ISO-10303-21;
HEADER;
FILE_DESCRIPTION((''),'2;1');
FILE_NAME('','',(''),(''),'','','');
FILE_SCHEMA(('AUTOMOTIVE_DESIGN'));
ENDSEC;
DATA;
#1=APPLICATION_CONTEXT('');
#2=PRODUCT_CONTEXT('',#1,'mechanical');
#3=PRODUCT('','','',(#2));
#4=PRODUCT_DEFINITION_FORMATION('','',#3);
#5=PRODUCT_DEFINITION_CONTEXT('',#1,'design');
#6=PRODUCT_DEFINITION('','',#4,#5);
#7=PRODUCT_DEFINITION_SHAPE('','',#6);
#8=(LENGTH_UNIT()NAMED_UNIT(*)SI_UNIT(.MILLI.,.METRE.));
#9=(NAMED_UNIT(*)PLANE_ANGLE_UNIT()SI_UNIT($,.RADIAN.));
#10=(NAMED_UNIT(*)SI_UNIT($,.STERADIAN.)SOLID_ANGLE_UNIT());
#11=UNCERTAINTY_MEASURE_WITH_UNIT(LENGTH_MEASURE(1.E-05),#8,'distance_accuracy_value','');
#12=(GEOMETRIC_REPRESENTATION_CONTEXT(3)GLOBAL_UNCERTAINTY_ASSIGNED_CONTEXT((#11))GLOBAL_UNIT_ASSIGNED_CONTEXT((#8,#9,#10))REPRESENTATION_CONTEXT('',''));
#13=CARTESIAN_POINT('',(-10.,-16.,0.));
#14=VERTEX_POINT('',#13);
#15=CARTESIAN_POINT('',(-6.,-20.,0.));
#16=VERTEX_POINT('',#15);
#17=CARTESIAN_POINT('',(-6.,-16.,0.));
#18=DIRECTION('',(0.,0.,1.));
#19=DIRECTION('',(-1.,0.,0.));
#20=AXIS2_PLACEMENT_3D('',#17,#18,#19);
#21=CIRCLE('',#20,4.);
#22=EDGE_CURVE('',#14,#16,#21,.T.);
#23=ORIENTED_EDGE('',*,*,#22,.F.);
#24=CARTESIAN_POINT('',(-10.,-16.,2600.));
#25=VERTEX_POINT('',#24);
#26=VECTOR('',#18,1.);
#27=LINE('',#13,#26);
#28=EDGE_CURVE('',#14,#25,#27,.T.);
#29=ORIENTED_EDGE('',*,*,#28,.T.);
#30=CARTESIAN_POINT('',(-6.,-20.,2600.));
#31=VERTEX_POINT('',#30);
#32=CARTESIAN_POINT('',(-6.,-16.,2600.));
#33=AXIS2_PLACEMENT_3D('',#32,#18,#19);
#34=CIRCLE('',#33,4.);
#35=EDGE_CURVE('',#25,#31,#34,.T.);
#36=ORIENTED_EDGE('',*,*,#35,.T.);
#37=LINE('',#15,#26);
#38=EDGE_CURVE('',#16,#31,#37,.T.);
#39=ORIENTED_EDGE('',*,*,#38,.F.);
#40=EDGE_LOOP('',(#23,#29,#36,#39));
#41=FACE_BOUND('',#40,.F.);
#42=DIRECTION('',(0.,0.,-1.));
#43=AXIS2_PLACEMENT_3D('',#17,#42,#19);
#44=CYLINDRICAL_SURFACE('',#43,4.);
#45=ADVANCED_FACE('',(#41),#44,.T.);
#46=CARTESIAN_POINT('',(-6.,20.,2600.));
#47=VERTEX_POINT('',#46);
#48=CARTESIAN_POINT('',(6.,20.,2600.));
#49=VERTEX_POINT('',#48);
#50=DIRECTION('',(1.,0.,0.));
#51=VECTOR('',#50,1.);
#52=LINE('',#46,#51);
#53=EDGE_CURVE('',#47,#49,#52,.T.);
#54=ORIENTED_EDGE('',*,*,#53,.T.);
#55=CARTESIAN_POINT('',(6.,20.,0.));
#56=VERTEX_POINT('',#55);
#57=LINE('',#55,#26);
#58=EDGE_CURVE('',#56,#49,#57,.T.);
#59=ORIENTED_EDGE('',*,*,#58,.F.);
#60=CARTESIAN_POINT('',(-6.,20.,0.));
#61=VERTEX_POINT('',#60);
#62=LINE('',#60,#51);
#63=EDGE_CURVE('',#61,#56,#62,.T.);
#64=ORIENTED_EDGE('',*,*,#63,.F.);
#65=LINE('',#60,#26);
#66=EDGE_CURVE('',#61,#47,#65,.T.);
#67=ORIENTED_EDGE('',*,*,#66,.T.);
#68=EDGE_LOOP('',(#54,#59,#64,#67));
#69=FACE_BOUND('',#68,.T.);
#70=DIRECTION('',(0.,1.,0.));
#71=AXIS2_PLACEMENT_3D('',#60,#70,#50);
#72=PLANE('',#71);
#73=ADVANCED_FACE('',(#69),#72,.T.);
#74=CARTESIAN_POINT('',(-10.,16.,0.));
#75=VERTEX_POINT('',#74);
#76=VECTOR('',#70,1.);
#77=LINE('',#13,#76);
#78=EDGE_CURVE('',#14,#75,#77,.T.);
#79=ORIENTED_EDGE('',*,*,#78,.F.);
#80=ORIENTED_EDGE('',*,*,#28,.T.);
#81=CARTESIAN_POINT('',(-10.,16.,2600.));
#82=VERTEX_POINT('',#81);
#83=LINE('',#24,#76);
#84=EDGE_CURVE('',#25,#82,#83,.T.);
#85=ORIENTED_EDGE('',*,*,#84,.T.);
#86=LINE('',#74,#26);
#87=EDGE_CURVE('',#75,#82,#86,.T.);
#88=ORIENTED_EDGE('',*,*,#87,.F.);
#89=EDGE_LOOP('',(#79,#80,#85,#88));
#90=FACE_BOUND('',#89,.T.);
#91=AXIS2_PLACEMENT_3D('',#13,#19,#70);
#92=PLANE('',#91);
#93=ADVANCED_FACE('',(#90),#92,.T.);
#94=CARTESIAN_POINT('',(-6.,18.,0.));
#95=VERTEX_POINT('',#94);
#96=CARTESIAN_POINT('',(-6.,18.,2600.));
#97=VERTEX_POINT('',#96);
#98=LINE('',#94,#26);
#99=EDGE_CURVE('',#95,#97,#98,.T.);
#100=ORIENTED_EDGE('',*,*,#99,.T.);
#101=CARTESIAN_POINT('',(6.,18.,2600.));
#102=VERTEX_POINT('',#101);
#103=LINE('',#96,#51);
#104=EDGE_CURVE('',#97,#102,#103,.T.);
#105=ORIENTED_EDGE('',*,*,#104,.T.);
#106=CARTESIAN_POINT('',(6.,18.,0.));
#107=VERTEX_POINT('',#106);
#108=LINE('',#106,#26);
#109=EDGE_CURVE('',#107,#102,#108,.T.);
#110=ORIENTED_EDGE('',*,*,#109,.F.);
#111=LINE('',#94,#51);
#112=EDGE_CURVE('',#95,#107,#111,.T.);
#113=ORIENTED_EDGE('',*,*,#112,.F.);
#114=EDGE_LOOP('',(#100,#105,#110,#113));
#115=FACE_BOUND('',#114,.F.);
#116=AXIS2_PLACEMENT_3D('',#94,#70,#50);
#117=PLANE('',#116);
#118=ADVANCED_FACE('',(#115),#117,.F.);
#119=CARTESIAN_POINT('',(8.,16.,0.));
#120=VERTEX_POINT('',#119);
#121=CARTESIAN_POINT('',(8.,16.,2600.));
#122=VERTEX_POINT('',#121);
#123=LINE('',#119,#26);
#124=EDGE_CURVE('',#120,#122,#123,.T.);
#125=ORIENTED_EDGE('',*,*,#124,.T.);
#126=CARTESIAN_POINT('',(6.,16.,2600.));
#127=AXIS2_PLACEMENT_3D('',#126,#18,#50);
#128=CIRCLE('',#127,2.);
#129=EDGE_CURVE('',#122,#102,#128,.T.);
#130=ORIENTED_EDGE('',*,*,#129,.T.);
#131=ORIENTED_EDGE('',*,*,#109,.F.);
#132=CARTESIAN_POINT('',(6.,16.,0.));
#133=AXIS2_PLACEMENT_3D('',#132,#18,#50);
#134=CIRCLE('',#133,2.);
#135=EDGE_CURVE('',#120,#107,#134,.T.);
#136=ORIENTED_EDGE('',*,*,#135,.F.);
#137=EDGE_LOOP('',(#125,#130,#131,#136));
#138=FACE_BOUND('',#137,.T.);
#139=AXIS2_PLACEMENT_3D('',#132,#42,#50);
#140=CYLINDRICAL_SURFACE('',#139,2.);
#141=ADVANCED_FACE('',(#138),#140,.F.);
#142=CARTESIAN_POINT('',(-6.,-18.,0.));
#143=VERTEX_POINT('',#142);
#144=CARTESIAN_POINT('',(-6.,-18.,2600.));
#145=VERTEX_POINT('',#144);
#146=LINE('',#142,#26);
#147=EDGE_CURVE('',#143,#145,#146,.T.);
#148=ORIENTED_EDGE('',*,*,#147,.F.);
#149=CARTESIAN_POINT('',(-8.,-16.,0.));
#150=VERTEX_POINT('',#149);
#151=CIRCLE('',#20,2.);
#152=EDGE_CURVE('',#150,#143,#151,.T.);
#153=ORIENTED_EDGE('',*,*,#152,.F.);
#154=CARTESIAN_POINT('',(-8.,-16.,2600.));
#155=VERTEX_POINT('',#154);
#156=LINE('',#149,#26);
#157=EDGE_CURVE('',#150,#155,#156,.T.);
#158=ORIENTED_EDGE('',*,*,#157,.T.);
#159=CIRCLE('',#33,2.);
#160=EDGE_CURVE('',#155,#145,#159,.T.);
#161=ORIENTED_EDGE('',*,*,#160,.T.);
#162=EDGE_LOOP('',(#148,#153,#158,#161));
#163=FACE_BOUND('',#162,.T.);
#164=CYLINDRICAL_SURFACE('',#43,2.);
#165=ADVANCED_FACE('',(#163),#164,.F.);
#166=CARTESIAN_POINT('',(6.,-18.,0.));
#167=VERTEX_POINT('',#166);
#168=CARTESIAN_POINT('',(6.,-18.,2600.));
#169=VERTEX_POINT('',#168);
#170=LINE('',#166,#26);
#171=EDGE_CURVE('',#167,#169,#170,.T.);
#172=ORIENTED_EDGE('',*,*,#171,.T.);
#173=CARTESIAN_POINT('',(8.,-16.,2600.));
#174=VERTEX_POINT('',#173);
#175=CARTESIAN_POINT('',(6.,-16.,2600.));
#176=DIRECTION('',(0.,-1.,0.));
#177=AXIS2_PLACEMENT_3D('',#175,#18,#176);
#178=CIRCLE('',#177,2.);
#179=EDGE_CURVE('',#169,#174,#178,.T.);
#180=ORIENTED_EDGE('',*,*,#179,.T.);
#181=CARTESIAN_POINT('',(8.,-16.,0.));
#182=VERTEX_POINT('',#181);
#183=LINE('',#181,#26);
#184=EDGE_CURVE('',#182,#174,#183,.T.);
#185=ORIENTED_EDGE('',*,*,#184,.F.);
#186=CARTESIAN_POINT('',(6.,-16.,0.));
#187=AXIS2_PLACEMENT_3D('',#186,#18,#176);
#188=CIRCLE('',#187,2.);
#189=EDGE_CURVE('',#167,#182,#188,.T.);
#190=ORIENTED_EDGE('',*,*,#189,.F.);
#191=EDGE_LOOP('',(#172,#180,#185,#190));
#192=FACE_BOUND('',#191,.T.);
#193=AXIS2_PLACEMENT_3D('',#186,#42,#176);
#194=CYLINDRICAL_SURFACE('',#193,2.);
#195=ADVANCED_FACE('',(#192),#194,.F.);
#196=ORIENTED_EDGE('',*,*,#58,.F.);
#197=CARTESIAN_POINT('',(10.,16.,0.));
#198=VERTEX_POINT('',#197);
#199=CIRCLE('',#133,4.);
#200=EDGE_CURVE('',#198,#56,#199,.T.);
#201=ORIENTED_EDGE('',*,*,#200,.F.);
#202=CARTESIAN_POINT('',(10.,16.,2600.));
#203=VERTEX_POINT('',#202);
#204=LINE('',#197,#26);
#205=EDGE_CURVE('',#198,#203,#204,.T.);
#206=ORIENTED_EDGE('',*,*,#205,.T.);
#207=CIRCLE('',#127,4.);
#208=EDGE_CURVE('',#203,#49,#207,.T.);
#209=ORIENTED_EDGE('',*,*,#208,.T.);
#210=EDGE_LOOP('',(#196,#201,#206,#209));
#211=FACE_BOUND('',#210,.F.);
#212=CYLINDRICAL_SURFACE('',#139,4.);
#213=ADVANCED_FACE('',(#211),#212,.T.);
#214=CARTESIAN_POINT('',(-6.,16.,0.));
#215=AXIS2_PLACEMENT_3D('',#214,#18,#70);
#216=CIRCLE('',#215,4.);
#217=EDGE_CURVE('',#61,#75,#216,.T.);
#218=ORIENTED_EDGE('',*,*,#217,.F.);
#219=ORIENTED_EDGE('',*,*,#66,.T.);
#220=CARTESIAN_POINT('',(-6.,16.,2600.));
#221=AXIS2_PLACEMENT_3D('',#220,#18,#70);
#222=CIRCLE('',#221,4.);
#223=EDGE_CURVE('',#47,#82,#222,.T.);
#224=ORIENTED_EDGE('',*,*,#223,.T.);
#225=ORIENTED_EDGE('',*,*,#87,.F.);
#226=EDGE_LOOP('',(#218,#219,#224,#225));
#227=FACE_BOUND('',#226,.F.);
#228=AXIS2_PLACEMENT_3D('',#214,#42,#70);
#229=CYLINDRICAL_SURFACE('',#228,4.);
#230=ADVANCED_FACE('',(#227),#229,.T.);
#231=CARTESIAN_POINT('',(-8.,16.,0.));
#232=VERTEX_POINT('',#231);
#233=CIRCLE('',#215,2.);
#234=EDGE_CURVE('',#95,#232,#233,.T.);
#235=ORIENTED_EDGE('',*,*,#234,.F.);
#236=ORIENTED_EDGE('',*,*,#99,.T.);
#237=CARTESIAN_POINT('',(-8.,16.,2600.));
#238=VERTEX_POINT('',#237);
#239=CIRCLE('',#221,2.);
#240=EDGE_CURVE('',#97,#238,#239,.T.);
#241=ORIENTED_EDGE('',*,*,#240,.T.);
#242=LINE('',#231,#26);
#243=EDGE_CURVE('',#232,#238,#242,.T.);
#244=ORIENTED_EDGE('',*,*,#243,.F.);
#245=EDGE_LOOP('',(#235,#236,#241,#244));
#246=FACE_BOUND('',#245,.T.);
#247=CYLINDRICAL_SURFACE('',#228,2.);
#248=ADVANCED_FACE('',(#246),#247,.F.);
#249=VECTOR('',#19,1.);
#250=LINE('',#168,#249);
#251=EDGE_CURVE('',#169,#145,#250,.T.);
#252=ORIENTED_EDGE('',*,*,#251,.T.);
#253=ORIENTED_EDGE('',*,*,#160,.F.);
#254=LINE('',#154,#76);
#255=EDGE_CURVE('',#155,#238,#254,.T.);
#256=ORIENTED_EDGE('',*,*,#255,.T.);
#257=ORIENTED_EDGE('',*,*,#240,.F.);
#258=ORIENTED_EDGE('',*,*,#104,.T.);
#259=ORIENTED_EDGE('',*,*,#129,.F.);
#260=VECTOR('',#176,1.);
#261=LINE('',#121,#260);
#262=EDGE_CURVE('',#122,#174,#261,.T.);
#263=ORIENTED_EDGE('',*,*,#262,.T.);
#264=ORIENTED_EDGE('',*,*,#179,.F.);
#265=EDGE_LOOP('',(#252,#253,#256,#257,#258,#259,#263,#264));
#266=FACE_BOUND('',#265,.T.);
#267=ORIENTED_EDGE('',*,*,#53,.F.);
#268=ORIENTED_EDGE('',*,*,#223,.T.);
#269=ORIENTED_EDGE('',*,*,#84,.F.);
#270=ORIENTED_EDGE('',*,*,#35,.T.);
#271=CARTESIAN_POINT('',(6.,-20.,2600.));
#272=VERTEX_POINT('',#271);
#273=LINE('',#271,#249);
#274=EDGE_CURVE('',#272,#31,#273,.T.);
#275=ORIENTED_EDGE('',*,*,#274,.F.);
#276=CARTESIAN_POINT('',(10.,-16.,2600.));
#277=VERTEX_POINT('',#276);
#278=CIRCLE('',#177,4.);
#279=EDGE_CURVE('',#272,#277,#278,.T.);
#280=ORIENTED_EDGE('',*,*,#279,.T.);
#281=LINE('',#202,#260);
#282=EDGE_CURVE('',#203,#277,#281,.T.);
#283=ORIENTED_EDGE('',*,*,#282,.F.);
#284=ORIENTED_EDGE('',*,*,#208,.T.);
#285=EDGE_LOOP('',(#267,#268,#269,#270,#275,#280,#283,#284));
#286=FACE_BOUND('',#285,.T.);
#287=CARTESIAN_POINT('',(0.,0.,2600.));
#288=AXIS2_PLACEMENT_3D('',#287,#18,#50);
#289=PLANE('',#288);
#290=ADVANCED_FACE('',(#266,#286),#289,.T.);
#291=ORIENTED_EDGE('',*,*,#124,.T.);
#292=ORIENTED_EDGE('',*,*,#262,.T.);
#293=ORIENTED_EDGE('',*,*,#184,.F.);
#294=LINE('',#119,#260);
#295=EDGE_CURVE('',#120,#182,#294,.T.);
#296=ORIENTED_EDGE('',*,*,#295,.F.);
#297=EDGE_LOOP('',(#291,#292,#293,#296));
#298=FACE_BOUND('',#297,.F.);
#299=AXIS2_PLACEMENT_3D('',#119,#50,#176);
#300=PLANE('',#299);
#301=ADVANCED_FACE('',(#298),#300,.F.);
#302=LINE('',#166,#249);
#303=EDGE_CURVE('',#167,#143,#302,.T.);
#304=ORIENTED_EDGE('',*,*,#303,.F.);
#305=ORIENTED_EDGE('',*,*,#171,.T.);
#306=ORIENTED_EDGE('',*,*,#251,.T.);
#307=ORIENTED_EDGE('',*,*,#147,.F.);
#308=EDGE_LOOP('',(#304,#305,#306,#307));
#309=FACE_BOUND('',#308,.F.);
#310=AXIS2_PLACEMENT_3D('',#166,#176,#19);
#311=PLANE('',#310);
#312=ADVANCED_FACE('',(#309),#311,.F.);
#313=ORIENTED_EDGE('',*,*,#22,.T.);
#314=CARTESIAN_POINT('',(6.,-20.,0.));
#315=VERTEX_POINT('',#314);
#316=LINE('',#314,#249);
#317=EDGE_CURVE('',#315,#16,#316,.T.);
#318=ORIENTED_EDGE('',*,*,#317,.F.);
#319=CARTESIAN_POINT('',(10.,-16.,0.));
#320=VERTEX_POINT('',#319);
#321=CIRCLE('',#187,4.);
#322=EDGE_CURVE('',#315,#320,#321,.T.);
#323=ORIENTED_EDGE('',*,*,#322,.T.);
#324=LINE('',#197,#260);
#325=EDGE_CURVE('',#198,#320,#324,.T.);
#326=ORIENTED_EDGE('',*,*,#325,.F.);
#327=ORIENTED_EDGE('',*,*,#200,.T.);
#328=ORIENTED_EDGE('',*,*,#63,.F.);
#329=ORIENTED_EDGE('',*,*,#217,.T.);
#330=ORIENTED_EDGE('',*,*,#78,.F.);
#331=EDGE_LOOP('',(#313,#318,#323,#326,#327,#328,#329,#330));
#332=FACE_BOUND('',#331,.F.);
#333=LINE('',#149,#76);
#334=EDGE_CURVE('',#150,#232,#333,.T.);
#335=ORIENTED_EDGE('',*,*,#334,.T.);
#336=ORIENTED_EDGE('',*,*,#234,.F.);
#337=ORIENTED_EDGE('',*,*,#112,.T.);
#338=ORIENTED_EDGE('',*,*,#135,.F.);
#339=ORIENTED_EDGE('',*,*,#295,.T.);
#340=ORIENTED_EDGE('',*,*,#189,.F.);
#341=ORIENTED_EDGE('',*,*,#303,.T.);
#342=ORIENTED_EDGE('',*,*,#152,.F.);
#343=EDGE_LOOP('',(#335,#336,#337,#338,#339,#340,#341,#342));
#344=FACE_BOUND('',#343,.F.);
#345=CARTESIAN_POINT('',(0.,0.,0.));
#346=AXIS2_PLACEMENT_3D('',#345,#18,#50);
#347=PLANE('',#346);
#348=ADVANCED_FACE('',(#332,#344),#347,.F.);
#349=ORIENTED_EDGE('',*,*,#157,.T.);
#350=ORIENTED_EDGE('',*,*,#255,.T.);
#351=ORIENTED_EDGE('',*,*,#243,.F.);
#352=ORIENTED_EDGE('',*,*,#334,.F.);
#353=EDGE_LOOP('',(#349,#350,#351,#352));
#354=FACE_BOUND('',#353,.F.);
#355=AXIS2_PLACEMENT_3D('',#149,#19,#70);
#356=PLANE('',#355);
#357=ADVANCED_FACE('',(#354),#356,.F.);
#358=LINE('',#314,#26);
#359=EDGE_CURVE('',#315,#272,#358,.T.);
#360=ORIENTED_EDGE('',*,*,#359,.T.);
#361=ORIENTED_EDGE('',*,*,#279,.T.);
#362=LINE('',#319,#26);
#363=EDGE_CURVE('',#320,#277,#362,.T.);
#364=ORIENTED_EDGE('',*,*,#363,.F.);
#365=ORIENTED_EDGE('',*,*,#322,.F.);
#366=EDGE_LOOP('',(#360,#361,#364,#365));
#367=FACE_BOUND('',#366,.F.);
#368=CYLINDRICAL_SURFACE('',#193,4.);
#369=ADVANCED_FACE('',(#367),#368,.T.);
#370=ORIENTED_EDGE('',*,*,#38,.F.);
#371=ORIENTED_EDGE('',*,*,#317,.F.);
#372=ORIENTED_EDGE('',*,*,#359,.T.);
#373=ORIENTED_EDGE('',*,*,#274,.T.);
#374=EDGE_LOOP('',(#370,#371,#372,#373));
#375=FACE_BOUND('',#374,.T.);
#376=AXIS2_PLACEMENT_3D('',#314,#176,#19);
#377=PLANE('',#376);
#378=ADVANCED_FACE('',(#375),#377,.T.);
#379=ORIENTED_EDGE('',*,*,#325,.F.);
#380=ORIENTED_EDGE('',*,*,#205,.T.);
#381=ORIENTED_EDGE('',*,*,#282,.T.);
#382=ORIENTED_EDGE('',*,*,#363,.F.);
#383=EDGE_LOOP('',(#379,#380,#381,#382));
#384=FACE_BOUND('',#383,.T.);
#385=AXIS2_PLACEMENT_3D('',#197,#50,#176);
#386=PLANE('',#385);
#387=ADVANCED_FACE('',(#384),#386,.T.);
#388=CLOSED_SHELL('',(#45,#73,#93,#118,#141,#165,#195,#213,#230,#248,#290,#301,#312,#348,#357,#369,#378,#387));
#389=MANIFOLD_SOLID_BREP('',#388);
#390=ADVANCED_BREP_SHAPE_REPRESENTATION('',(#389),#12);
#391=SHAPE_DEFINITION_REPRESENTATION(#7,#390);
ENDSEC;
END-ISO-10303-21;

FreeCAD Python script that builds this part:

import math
import FreeCAD as App
import Part
import Sketcher

doc = App.newDocument("Part")
body = doc.addObject("PartDesign::Body", "Body")

sketch1 = body.newObject("Sketcher::SketchObject", "Sketch")
sketch1.AttachmentSupport = (doc.getObject("XY_Plane"), [""])
sketch1.MapMode = "FlatFace"
sketch1.addGeometry([
    Part.LineSegment(App.Vector(-10, 16, 0), App.Vector(-10, -16, 0)),
    Part.ArcOfCircle(Part.Circle(App.Vector(-6, -16, 0), App.Vector(0, 0, 1), 4), math.radians(180), math.radians(270)),
    Part.LineSegment(App.Vector(-6, -20, 0), App.Vector(6, -20, 0)),
    Part.ArcOfCircle(Part.Circle(App.Vector(6, -16, 0), App.Vector(0, 0, 1), 4), math.radians(-90), math.radians(0)),
    Part.LineSegment(App.Vector(10, -16, 0), App.Vector(10, 16, 0)),
    Part.ArcOfCircle(Part.Circle(App.Vector(6, 16, 0), App.Vector(0, 0, 1), 4), math.radians(0), math.radians(90)),
    Part.LineSegment(App.Vector(6, 20, 0), App.Vector(-6, 20, 0)),
    Part.ArcOfCircle(Part.Circle(App.Vector(-6, 16, 0), App.Vector(0, 0, 1), 4), math.radians(90), math.radians(180)),
    Part.ArcOfCircle(Part.Circle(App.Vector(-6, 16, 0), App.Vector(0, 0, 1), 2), math.radians(90), math.radians(180)),
    Part.LineSegment(App.Vector(-6, 18, 0), App.Vector(6, 18, 0)),
    Part.ArcOfCircle(Part.Circle(App.Vector(6, 16, 0), App.Vector(0, 0, 1), 2), math.radians(0), math.radians(90)),
    Part.LineSegment(App.Vector(8, 16, 0), App.Vector(8, -16, 0)),
    Part.ArcOfCircle(Part.Circle(App.Vector(6, -16, 0), App.Vector(0, 0, 1), 2), math.radians(-90), math.radians(0)),
    Part.LineSegment(App.Vector(6, -18, 0), App.Vector(-6, -18, 0)),
    Part.ArcOfCircle(Part.Circle(App.Vector(-6, -16, 0), App.Vector(0, 0, 1), 2), math.radians(180), math.radians(270)),
    Part.LineSegment(App.Vector(-8, -16, 0), App.Vector(-8, 16, 0)),
], False)
sketch1.addConstraint([
    Sketcher.Constraint("Tangent", 0, 2, 1, 1),
    Sketcher.Constraint("Tangent", 1, 2, 2, 1),
    Sketcher.Constraint("Tangent", 2, 2, 3, 1),
    Sketcher.Constraint("Tangent", 3, 2, 4, 1),
    Sketcher.Constraint("Tangent", 4, 2, 5, 1),
    Sketcher.Constraint("Tangent", 5, 2, 6, 1),
    Sketcher.Constraint("Tangent", 6, 2, 7, 1),
    Sketcher.Constraint("Tangent", 7, 2, 0, 1),
    Sketcher.Constraint("Tangent", 8, 1, 9, 1),
    Sketcher.Constraint("Tangent", 9, 2, 10, 2),
    Sketcher.Constraint("Tangent", 10, 1, 11, 1),
    Sketcher.Constraint("Tangent", 11, 2, 12, 2),
    Sketcher.Constraint("Tangent", 12, 1, 13, 1),
    Sketcher.Constraint("Tangent", 13, 2, 14, 2),
    Sketcher.Constraint("Tangent", 14, 1, 15, 1),
    Sketcher.Constraint("Tangent", 15, 2, 8, 2),
    Sketcher.Constraint("Vertical", 0),
    Sketcher.Constraint("Horizontal", 2),
    Sketcher.Constraint("Vertical", 4),
    Sketcher.Constraint("Horizontal", 6),
    Sketcher.Constraint("Horizontal", 9),
    Sketcher.Constraint("Vertical", 11),
    Sketcher.Constraint("Horizontal", 13),
    Sketcher.Constraint("Vertical", 15),
    Sketcher.Constraint("Coincident", 8, 3, 7, 3),
    Sketcher.Constraint("Coincident", 10, 3, 5, 3),
    Sketcher.Constraint("Coincident", 12, 3, 3, 3),
    Sketcher.Constraint("Equal", 1, 3),
    Sketcher.Constraint("Equal", 3, 5),
    Sketcher.Constraint("Equal", 5, 7),
    Sketcher.Constraint("Equal", 12, 14),
    Sketcher.Constraint("Symmetric", 1, 3, 5, 3, -1, 1),
    Sketcher.Constraint("Radius", 1, 4.0),
    Sketcher.Constraint("Radius", 8, 2.0),
    Sketcher.Constraint("DistanceX", 0, 2, -1, 1, 10.0),
    Sketcher.Constraint("DistanceY", 1, 2, -1, 1, 20.0),
])
pad1 = body.newObject("PartDesign::Pad", "Pad")
pad1.Profile = sketch1
pad1.Length = 2600

doc.recompute()
